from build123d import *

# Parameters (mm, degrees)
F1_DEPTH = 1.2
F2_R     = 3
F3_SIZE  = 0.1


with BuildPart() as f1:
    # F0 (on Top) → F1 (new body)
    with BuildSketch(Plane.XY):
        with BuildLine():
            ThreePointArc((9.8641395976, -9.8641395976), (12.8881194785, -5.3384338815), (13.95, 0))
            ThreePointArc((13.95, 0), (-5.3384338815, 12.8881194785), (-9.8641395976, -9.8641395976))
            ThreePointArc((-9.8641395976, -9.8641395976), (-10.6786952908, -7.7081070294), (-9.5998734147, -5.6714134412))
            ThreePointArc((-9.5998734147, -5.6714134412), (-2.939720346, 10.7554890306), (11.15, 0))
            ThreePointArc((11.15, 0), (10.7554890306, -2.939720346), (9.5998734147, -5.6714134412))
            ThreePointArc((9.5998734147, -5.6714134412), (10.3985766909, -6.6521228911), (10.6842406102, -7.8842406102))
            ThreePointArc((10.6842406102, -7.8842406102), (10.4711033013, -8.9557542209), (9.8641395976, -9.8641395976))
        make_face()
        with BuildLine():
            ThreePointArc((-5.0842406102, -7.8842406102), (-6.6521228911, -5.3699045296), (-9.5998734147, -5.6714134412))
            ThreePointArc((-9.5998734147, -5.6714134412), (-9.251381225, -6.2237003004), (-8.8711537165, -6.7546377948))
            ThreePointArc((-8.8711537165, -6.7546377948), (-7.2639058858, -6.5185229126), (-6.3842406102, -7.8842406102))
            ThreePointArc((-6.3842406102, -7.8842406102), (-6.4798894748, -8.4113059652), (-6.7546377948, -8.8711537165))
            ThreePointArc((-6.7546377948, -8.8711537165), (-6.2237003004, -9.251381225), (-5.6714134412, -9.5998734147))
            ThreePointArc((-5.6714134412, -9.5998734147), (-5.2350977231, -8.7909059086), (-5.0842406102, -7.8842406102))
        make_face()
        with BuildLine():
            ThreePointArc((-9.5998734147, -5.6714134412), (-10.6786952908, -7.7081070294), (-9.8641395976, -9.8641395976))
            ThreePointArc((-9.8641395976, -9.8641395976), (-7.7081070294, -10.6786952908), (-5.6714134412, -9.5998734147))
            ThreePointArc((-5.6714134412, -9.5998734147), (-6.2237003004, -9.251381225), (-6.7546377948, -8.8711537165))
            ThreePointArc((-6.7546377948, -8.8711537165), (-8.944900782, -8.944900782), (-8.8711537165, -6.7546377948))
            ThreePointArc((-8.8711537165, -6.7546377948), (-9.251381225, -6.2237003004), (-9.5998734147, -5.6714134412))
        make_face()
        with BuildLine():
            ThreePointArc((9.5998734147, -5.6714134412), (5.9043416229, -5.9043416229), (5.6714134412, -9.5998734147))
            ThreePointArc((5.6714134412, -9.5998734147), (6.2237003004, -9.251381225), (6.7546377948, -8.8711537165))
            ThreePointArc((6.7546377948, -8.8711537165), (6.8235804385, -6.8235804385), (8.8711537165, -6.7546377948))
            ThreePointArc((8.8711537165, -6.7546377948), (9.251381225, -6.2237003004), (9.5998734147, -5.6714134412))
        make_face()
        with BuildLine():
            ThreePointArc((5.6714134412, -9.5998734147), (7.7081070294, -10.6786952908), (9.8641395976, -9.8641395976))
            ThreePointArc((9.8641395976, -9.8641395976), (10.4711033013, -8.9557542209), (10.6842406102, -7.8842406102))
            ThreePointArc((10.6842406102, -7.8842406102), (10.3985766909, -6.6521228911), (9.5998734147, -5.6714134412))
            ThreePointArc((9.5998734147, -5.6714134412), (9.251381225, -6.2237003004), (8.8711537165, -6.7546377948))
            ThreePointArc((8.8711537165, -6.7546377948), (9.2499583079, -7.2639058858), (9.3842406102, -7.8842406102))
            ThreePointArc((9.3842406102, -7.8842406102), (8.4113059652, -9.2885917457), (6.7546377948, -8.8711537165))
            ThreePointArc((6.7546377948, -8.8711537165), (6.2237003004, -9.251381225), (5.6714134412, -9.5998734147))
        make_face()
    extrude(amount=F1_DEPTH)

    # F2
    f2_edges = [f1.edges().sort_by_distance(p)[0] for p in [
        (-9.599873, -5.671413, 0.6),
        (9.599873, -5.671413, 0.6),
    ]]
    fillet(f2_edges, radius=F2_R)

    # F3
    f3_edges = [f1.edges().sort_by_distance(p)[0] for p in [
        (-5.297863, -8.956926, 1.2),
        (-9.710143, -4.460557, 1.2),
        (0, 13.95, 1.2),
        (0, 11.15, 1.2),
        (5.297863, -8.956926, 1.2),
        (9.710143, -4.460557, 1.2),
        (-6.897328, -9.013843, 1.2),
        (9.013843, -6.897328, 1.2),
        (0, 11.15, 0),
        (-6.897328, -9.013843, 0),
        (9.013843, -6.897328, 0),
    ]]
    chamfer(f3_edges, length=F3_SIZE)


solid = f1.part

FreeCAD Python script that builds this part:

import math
import FreeCAD as App
import Part
import Sketcher
from FreeCAD import Vector
Q = App.Units.Quantity


def edges_at(feature, points):
    """Names of the edges that pass closest to the given points."""
    edges = feature.Shape.Edges
    near = lambda p: min(range(len(edges)), key=lambda i: edges[i].distToShape(Part.Vertex(*p))[0])
    return sorted({f"Edge{near(p) + 1}" for p in points})

doc = App.newDocument("Part")
params = doc.addObject("Spreadsheet::Sheet", "Params")
for row, (alias, value) in enumerate([
    ("sketch1_radius", "2.8 mm"),
    ("sketch1_radius2", "1.5 mm"),
    ("sketch1_radius3", "13.95 mm"),
    ("sketch1_radius4", "11.15 mm"),
    ("pad1_length", "1.2 mm"),
    ("fillet_radius", "3 mm"),
    ("chamfer_size", "0.1 mm"),
], start=1):
    params.set(f"A{row}", alias)
    params.set(f"B{row}", "=" + value)
    params.setAlias(f"B{row}", alias)

body = doc.addObject("PartDesign::Body", "Body")

# Sketch on XY plane
sketch1 = body.newObject("Sketcher::SketchObject", "Sketch")
sketch1.AttachmentSupport = (doc.getObject("XY_Plane"), [""])
sketch1.MapMode = "FlatFace"
sketch1.addGeometry([
    Part.ArcOfCircle(Part.Circle(Vector(0, 0, 0), Vector(0, 0, 1), 13.95), math.radians(-45), math.radians(0)),  # 0
    Part.ArcOfCircle(Part.Circle(Vector(0, 0, 0), Vector(0, 0, 1), 13.95), math.radians(0), math.radians(225)),  # 1
    Part.ArcOfCircle(Part.Circle(Vector(-7.884241, -7.884241, 0), Vector(0, 0, 1), 2.8), math.radians(-135), math.radians(-37.786873)),  # 2
    Part.ArcOfCircle(Part.Circle(Vector(-7.884241, -7.884241, 0), Vector(0, 0, 1), 2.8), math.radians(-37.786873), math.radians(0)),  # 3
    Part.ArcOfCircle(Part.Circle(Vector(-7.884241, -7.884241, 0), Vector(0, 0, 1), 2.8), math.radians(0), math.radians(127.786873)),  # 4
    Part.ArcOfCircle(Part.Circle(Vector(0, 0, 0), Vector(0, 0, 1), 11.15), math.radians(0), math.radians(210.573745)),  # 5
    Part.ArcOfCircle(Part.Circle(Vector(0, 0, 0), Vector(0, 0, 1), 11.15), math.radians(-30.573745), math.radians(0)),  # 6
    Part.ArcOfCircle(Part.Circle(Vector(7.884241, -7.884241, 0), Vector(0, 0, 1), 2.8), math.radians(52.213127), math.radians(217.786873)),  # 7
    Part.ArcOfCircle(Part.Circle(Vector(7.884241, -7.884241, 0), Vector(0, 0, 1), 2.8), math.radians(-142.213127), math.radians(-45)),  # 8
    Part.ArcOfCircle(Part.Circle(Vector(-7.884241, -7.884241, 0), Vector(0, 0, 1), 1.5), math.radians(131.143112), math.radians(318.856888)),  # 9
    Part.ArcOfCircle(Part.Circle(Vector(-7.884241, -7.884241, 0), Vector(0, 0, 1), 1.5), math.radians(0), math.radians(131.143112)),  # 10
    Part.ArcOfCircle(Part.Circle(Vector(-7.884241, -7.884241, 0), Vector(0, 0, 1), 1.5), math.radians(-41.143112), math.radians(0)),  # 11
    Part.ArcOfCircle(Part.Circle(Vector(7.884241, -7.884241, 0), Vector(0, 0, 1), 1.5), math.radians(-138.856888), math.radians(0)),  # 12
    Part.ArcOfCircle(Part.Circle(Vector(7.884241, -7.884241, 0), Vector(0, 0, 1), 1.5), math.radians(48.856888), math.radians(221.143112)),  # 13
    Part.ArcOfCircle(Part.Circle(Vector(7.884241, -7.884241, 0), Vector(0, 0, 1), 1.5), math.radians(0), math.radians(48.856888)),  # 14
], False)
sketch1.addConstraint([
    Sketcher.Constraint("Tangent", 0, 2, 1, 1),
    Sketcher.Constraint("Tangent", 1, 2, 2, 1),
    Sketcher.Constraint("Tangent", 2, 2, 3, 1),
    Sketcher.Constraint("Tangent", 3, 2, 4, 1),
    Sketcher.Constraint("Coincident", 4, 2, 5, 2),
    Sketcher.Constraint("Tangent", 5, 1, 6, 2),
    Sketcher.Constraint("Coincident", 6, 1, 7, 1),
    Sketcher.Constraint("Tangent", 7, 2, 8, 1),
    Sketcher.Constraint("Tangent", 8, 2, 0, 1),
    Sketcher.Constraint("Tangent", 9, 1, 10, 2),
    Sketcher.Constraint("Tangent", 10, 1, 11, 2),
    Sketcher.Constraint("Tangent", 11, 1, 9, 2),
    Sketcher.Constraint("Tangent", 12, 1, 13, 2),
    Sketcher.Constraint("Tangent", 13, 1, 14, 2),
    Sketcher.Constraint("Tangent", 14, 1, 12, 2),
    Sketcher.Constraint("Coincident", 0, 3, -1, 1),
    Sketcher.Constraint("Coincident", 5, 3, -1, 1),
    Sketcher.Constraint("Coincident", 4, 3, 2, 3),
    Sketcher.Constraint("Coincident", 9, 3, 2, 3),
    Sketcher.Constraint("Coincident", 12, 3, 7, 3),
    Sketcher.Constraint("Equal", 0, 1),
    Sketcher.Constraint("Equal", 5, 6),
    Sketcher.Constraint("Equal", 4, 7),
    Sketcher.Constraint("Equal", 7, 8),
    Sketcher.Constraint("Equal", 11, 12),
    Sketcher.Constraint("Symmetric", 2, 2, 7, 2, -2),
    Sketcher.Constraint("PointOnObject", 0, 2, -1),
    Sketcher.Constraint("PointOnObject", 5, 1, -1),
    Sketcher.Constraint("Horizontal", 14, 3, 3, 2),
    Sketcher.Constraint("Horizontal", 3, 2, 10, 1),
    Sketcher.Constraint("Horizontal", 11, 1, 12, 1),
    Sketcher.Constraint("Horizontal", 9, 1, 13, 1),
    Sketcher.Constraint("Horizontal", 10, 1, 14, 1),
    Sketcher.Constraint("Radius", 2, Q("2.8 mm")),
    Sketcher.Constraint("Radius", 9, Q("1.5 mm")),
    Sketcher.Constraint("Radius", 0, Q("13.95 mm")),
    Sketcher.Constraint("Radius", 5, Q("11.15 mm")),
    Sketcher.Constraint("DistanceX", 1, 2, 3, 3, Q("1.979899 mm")),
    Sketcher.Constraint("DistanceX", 4, 2, 9, 1, Q("0.72872 mm")),
    Sketcher.Constraint("DistanceY", 2, 2, 11, 1, Q("0.72872 mm")),
    Sketcher.Constraint("DistanceX", 2, 2, -1, 1, Q("5.671413 mm")),
])
sketch1.setExpression("Constraints[33]", "Params.sketch1_radius")
sketch1.setExpression("Constraints[34]", "Params.sketch1_radius2")
sketch1.setExpression("Constraints[35]", "Params.sketch1_radius3")
sketch1.setExpression("Constraints[36]", "Params.sketch1_radius4")
pad1 = body.newObject("PartDesign::Pad", "Pad")
pad1.Profile = sketch1
pad1.setExpression("Length", "Params.pad1_length")
doc.recompute()

fillet = body.newObject("PartDesign::Fillet", "Fillet")
fillet.Base = (pad1, edges_at(pad1, [(-9.6, -5.671, 0.6), (9.6, -5.671, 0.6)]))
fillet.setExpression("Radius", "Params.fillet_radius")
doc.recompute()

chamfer = body.newObject("PartDesign::Chamfer", "Chamfer")
chamfer.Base = (fillet, edges_at(fillet, [
    (-5.235, -8.791, 1.2),
    (-9.71, -4.461, 1.2),
    (-5.338, 12.888, 1.2),
    (-1.438, 11.057, 1.2),
    (5.369, -6.653, 1.2),
    (9.71, -4.461, 1.2),
    (-8.945, -8.945, 1.2),
    (9.25, -7.264, 1.2),
    (-1.438, 11.057, 0),
    (-8.945, -8.945, 0),
    (9.25, -7.264, 0),
]))
chamfer.setExpression("Size", "Params.chamfer_size")

doc.recompute()
